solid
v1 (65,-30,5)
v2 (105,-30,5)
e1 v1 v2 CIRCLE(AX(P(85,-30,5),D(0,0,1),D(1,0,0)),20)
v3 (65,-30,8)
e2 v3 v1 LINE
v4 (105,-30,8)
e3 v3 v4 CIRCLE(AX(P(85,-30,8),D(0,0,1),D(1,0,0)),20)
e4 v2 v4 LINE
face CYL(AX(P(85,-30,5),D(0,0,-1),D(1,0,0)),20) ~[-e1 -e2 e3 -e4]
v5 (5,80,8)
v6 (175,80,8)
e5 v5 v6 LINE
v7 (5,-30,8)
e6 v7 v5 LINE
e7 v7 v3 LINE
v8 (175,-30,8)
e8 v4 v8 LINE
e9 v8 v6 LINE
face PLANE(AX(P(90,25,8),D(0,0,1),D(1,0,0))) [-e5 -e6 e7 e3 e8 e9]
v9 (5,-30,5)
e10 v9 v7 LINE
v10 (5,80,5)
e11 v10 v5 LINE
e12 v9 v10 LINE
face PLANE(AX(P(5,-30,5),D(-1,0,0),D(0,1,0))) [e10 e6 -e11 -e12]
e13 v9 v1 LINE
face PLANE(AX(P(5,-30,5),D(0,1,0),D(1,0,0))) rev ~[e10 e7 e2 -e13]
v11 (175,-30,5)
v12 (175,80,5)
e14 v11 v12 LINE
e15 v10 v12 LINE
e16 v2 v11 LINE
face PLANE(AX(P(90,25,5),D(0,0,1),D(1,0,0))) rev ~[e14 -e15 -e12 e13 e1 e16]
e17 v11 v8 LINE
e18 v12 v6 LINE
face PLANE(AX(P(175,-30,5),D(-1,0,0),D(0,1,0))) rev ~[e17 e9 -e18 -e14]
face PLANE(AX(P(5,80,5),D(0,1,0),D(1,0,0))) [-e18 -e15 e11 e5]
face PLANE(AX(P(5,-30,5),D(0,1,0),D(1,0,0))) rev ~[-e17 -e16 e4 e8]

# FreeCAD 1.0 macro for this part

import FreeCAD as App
import Part
import Sketcher

doc = App.newDocument("Part")
body = doc.addObject("PartDesign::Body", "Body")

sketch1 = doc.addObject("Sketcher::SketchObject", "Sketch")
body.addObject(sketch1)
sketch1.AttachmentSupport = (doc.XY_Plane, [""])
sketch1.MapMode = "FlatFace"
sketch1.addGeometry(Part.Circle(App.Vector(80, 0, 0), App.Vector(0, 0, 1), 20), False)
sketch1.addConstraint(Sketcher.Constraint("PointOnObject", 0, 3, -1))
sketch1.addConstraint(Sketcher.Constraint("Diameter", 0, 40.0))
sketch1.addConstraint(Sketcher.Constraint("DistanceX", -1, 1, 0, 3, 80.0))
pad1 = doc.addObject("PartDesign::Pad", "Pad")
body.addObject(pad1)
pad1.Profile = sketch1
pad1.Length = 3
body2 = doc.addObject("PartDesign::Body", "Body001")

sketch2 = doc.addObject("Sketcher::SketchObject", "Sketch001")
body2.addObject(sketch2)
sketch2.AttachmentSupport = (doc.getObject("XY_Plane001"), [""])
sketch2.MapMode = "FlatFace"
sketch2.addGeometry(Part.LineSegment(App.Vector(0, 110, 0), App.Vector(0, 0, 0)), False)
sketch2.addGeometry(Part.LineSegment(App.Vector(0, 0, 0), App.Vector(170, 0, 0)), False)
sketch2.addGeometry(Part.LineSegment(App.Vector(170, 0, 0), App.Vector(170, 110, 0)), False)
sketch2.addGeometry(Part.LineSegment(App.Vector(170, 110, 0), App.Vector(0, 110, 0)), False)
sketch2.addConstraint(Sketcher.Constraint("Coincident", 0, 2, 1, 1))
sketch2.addConstraint(Sketcher.Constraint("Coincident", 1, 2, 2, 1))
sketch2.addConstraint(Sketcher.Constraint("Coincident", 2, 2, 3, 1))
sketch2.addConstraint(Sketcher.Constraint("Coincident", 3, 2, 0, 1))
sketch2.addConstraint(Sketcher.Constraint("Vertical", 0))
sketch2.addConstraint(Sketcher.Constraint("Horizontal", 1))
sketch2.addConstraint(Sketcher.Constraint("Vertical", 2))
sketch2.addConstraint(Sketcher.Constraint("Horizontal", 3))
sketch2.addConstraint(Sketcher.Constraint("Coincident", 0, 2, -1, 1))
sketch2.addConstraint(Sketcher.Constraint("DistanceX", 1, 1, 1, 2, 170.0))
sketch2.addConstraint(Sketcher.Constraint("DistanceY", 0, 2, 0, 1, 110.0))
pad2 = doc.addObject("PartDesign::Pad", "Pad001")
body2.addObject(pad2)
pad2.Profile = sketch2
pad2.Length = 3
doc.recompute()

boolean = doc.addObject("PartDesign::Boolean", "Boolean")
body2.addObject(boolean)
boolean.Type = "Fuse"
boolean.addObjects([body])
body3 = doc.addObject("PartDesign::Body", "Body002")
doc.recompute()

body2.Placement = App.Placement(App.Vector(5, -30, 5), App.Rotation(App.Vector(0, 0, 1), 0))
boolean2 = doc.addObject("PartDesign::Boolean", "Boolean001")
body3.addObject(boolean2)
boolean2.Type = "Fuse"
boolean2.addObjects([body2])

doc.recompute()
